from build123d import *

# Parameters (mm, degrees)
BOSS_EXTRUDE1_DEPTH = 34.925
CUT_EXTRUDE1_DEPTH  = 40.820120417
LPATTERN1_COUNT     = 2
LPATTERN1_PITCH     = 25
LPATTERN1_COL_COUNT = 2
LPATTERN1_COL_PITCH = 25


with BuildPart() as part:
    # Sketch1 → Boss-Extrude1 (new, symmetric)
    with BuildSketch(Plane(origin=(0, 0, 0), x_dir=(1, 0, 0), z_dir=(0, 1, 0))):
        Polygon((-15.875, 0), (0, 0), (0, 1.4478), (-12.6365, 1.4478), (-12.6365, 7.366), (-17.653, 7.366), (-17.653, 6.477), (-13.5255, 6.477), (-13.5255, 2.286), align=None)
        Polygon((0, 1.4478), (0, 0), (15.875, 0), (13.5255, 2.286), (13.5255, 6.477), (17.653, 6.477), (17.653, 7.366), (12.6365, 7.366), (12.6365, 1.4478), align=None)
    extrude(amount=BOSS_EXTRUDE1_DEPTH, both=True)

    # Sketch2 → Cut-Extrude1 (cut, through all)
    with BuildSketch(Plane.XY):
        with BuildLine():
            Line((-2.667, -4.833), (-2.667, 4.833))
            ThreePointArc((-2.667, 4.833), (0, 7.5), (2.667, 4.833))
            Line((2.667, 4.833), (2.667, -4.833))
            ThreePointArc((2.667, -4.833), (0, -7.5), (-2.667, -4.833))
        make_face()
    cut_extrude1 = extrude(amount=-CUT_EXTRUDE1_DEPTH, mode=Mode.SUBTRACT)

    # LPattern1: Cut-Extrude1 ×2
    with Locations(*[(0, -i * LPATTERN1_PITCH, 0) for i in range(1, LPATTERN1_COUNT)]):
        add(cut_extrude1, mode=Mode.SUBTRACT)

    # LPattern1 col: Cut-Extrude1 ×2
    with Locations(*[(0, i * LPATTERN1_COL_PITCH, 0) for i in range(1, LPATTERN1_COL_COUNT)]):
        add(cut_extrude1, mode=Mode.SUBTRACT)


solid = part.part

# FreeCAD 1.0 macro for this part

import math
import FreeCAD as App
import Part
import Sketcher
from FreeCAD import Vector
Q = App.Units.Quantity


def add_polygon(sketch, points):
    """Adds a closed chain of lines whose ends are joined by coincident constraints."""
    first, n = sketch.GeometryCount, len(points)
    for a, b in zip(points, points[1:] + points[:1]):
        sketch.addGeometry(Part.LineSegment(App.Vector(*a, 0), App.Vector(*b, 0)), False)
    for i in range(n):
        sketch.addConstraint(Sketcher.Constraint("Coincident", first + i, 2, first + (i + 1) % n, 1))

doc = App.newDocument("Part")
body = doc.addObject("PartDesign::Body", "Body")

sketch1 = body.newObject("Sketcher::SketchObject", "Sketch")
sketch1.AttachmentSupport = (doc.getObject("XZ_Plane"), [""])
sketch1.MapMode = "FlatFace"
add_polygon(sketch1, [(-15.875, 0), (15.875, 0), (13.5255, -2.286), (13.5255, -6.477), (17.653, -6.477), (17.653, -7.366), (12.6365, -7.366), (12.6365, -1.4478), (-12.6365, -1.4478), (-12.6365, -7.366), (-17.653, -7.366), (-17.653, -6.477), (-13.5255, -6.477), (-13.5255, -2.286)])
sketch1.addConstraint([
    Sketcher.Constraint("Horizontal", 0),
    Sketcher.Constraint("Vertical", 2),
    Sketcher.Constraint("Horizontal", 3),
    Sketcher.Constraint("Vertical", 4),
    Sketcher.Constraint("Horizontal", 5),
    Sketcher.Constraint("Vertical", 6),
    Sketcher.Constraint("Horizontal", 7),
    Sketcher.Constraint("Vertical", 8),
    Sketcher.Constraint("Horizontal", 9),
    Sketcher.Constraint("Vertical", 10),
    Sketcher.Constraint("Horizontal", 11),
    Sketcher.Constraint("Vertical", 12),
    Sketcher.Constraint("Symmetric", 0, 2, 13, 2, -1, 1),
    Sketcher.Constraint("Symmetric", 5, 2, 8, 2, -2),
    Sketcher.Constraint("Symmetric", 3, 2, 10, 2, -2),
    Sketcher.Constraint("Symmetric", 1, 2, 12, 2, -2),
    Sketcher.Constraint("DistanceX", 0, 1, 0, 2, Q("1.25 in")),
    Sketcher.Constraint("DistanceY", 4, 2, 1, 2, Q("0.2 in")),
    Sketcher.Constraint("DistanceX", 7, 2, 7, 1, Q("0.995 in")),
    Sketcher.Constraint("DistanceY", 2, 2, 2, 1, Q("0.165 in")),
    Sketcher.Constraint("DistanceY", 6, 1, 6, 2, Q("0.233 in")),
    Sketcher.Constraint("DistanceY", 1, 2, -1, 1, Q("0.09 in")),
    Sketcher.Constraint("DistanceX", 0, 2, 3, 2, Q("0.07 in")),
    Sketcher.Constraint("DistanceX", 7, 2, 1, 2, Q("1.03 in")),
])
pad1 = body.newObject("PartDesign::Pad", "Pad")
pad1.Profile = sketch1
pad1.Length = Q("2.75 in")
pad1.Midplane = True

sketch2 = body.newObject("Sketcher::SketchObject", "Sketch001")
sketch2.AttachmentSupport = (doc.getObject("XY_Plane"), [""])
sketch2.MapMode = "FlatFace"
sketch2.addGeometry([
    Part.LineSegment(Vector(-2.667, 4.833, 0), Vector(-2.667, -4.833, 0)),
    Part.ArcOfCircle(Part.Circle(Vector(0, -4.833, 0), Vector(0, 0, 1), 2.667), math.radians(180), math.radians(360)),
    Part.LineSegment(Vector(2.667, -4.833, 0), Vector(2.667, 4.833, 0)),
    Part.ArcOfCircle(Part.Circle(Vector(0, 4.833, 0), Vector(0, 0, 1), 2.667), math.radians(0), math.radians(180)),
], False)
sketch2.addConstraint([
    Sketcher.Constraint("Tangent", 0, 2, 1, 1),
    Sketcher.Constraint("Tangent", 1, 2, 2, 1),
    Sketcher.Constraint("Tangent", 2, 2, 3, 1),
    Sketcher.Constraint("Tangent", 3, 2, 0, 1),
    Sketcher.Constraint("Vertical", 0),
    Sketcher.Constraint("Vertical", 2),
    Sketcher.Constraint("Symmetric", 1, 3, 3, 3, -1, 1),
    Sketcher.Constraint("Radius", 1, Q("0.105 in")),
    Sketcher.Constraint("DistanceY", 0, 2, 0, 1, 9.666),
])
pocket1 = body.newObject("PartDesign::Pocket", "Pocket")
pocket1.Profile = sketch2
pocket1.Type = "ThroughAll"
doc.recompute()

linearpattern = body.newObject("PartDesign::LinearPattern", "LinearPattern")
linearpattern.Originals = [pocket1]
linearpattern.Direction = (doc.getObject("Y_Axis"), [""])
linearpattern.Mode = "offset"
linearpattern.Offset = 25
linearpattern.Occurrences = 2
linearpattern.Reversed = True
body.Tip = linearpattern
doc.recompute()

linearpattern2 = body.newObject("PartDesign::LinearPattern", "LinearPattern001")
linearpattern2.Originals = [pocket1]
linearpattern2.Direction = (doc.getObject("Y_Axis"), [""])
linearpattern2.Mode = "offset"
linearpattern2.Offset = 25
linearpattern2.Occurrences = 2
body.Tip = linearpattern2

doc.recompute()
